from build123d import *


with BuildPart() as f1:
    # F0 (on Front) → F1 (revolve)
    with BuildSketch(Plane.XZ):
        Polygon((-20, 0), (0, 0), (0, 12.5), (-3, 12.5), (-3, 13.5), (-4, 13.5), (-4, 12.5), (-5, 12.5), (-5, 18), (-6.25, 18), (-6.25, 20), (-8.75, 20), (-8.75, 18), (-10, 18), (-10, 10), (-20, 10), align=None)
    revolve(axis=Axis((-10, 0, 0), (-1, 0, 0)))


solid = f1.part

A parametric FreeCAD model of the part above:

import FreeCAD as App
import Part
import Sketcher

V = App.Vector

doc = App.newDocument("Part")
body = doc.addObject("PartDesign::Body", "Body")

# Sketch on XZ plane
sketch1 = doc.addObject("Sketcher::SketchObject", "Sketch")
body.addObject(sketch1)
sketch1.AttachmentSupport = (doc.XZ_Plane, [""])
sketch1.MapMode = "FlatFace"
sketch1.addGeometry([
    Part.LineSegment(V(-20, 0, 0), V(0, 0, 0)),  # 0
    Part.LineSegment(V(0, 0, 0), V(0, 12.5, 0)),  # 1
    Part.LineSegment(V(0, 12.5, 0), V(-3, 12.5, 0)),  # 2
    Part.LineSegment(V(-3, 12.5, 0), V(-3, 13.5, 0)),  # 3
    Part.LineSegment(V(-3, 13.5, 0), V(-4, 13.5, 0)),  # 4
    Part.LineSegment(V(-4, 13.5, 0), V(-4, 12.5, 0)),  # 5
    Part.LineSegment(V(-4, 12.5, 0), V(-5, 12.5, 0)),  # 6
    Part.LineSegment(V(-5, 12.5, 0), V(-5, 18, 0)),  # 7
    Part.LineSegment(V(-5, 18, 0), V(-6.2, 18, 0)),  # 8
    Part.LineSegment(V(-6.2, 18, 0), V(-6.2, 20, 0)),  # 9
    Part.LineSegment(V(-6.2, 20, 0), V(-8.8, 20, 0)),  # 10
    Part.LineSegment(V(-8.8, 20, 0), V(-8.8, 18, 0)),  # 11
    Part.LineSegment(V(-8.8, 18, 0), V(-10, 18, 0)),  # 12
    Part.LineSegment(V(-10, 18, 0), V(-10, 10, 0)),  # 13
    Part.LineSegment(V(-10, 10, 0), V(-20, 10, 0)),  # 14
    Part.LineSegment(V(-20, 10, 0), V(-20, 0, 0)),  # 15
], False)
sketch1.addConstraint([
    Sketcher.Constraint("Coincident", 0, 2, 1, 1),
    Sketcher.Constraint("Coincident", 1, 2, 2, 1),
    Sketcher.Constraint("Coincident", 2, 2, 3, 1),
    Sketcher.Constraint("Coincident", 3, 2, 4, 1),
    Sketcher.Constraint("Coincident", 4, 2, 5, 1),
    Sketcher.Constraint("Coincident", 5, 2, 6, 1),
    Sketcher.Constraint("Coincident", 6, 2, 7, 1),
    Sketcher.Constraint("Coincident", 7, 2, 8, 1),
    Sketcher.Constraint("Coincident", 8, 2, 9, 1),
    Sketcher.Constraint("Coincident", 9, 2, 10, 1),
    Sketcher.Constraint("Coincident", 10, 2, 11, 1),
    Sketcher.Constraint("Coincident", 11, 2, 12, 1),
    Sketcher.Constraint("Coincident", 12, 2, 13, 1),
    Sketcher.Constraint("Coincident", 13, 2, 14, 1),
    Sketcher.Constraint("Coincident", 14, 2, 15, 1),
    Sketcher.Constraint("Coincident", 15, 2, 0, 1),
    Sketcher.Constraint("Horizontal", 0),
    Sketcher.Constraint("Vertical", 1),
    Sketcher.Constraint("Horizontal", 2),
    Sketcher.Constraint("Vertical", 3),
    Sketcher.Constraint("Horizontal", 4),
    Sketcher.Constraint("Vertical", 5),
    Sketcher.Constraint("Horizontal", 6),
    Sketcher.Constraint("Vertical", 7),
    Sketcher.Constraint("Horizontal", 8),
    Sketcher.Constraint("Vertical", 9),
    Sketcher.Constraint("Horizontal", 10),
    Sketcher.Constraint("Vertical", 11),
    Sketcher.Constraint("Horizontal", 12),
    Sketcher.Constraint("Vertical", 13),
    Sketcher.Constraint("Horizontal", 14),
    Sketcher.Constraint("Vertical", 15),
    Sketcher.Constraint("Coincident", 0, 2, -1, 1),
    Sketcher.Constraint("Horizontal", 2, 2, 5, 2),
    Sketcher.Constraint("Horizontal", 8, 2, 11, 2),
    Sketcher.Constraint("Equal", 4, 6),
    Sketcher.Constraint("Equal", 8, 12),
    Sketcher.Constraint("Equal", 6, 3),
    Sketcher.Constraint("Equal", 14, 15),
    Sketcher.Constraint("DistanceX", 0, 1, 0, 2, 20.0),
    Sketcher.Constraint("DistanceX", 2, 2, 2, 1, 3.0),
    Sketcher.Constraint("DistanceX", 4, 2, 4, 1, 1.0),
    Sketcher.Constraint("DistanceX", 14, 2, 14, 1, 10.0),
    Sketcher.Constraint("DistanceY", 9, 1, 9, 2, 2.0),
    Sketcher.Constraint("DistanceY", 13, 2, 13, 1, 8.0),
    Sketcher.Constraint("DistanceX", 10, 2, 10, 1, 2.5),
    Sketcher.Constraint("DistanceY", 1, 1, 1, 2, 12.5),
])
revolution = doc.addObject("PartDesign::Revolution", "Revolution")
body.addObject(revolution)
revolution.Profile = sketch1
revolution.ReferenceAxis = (sketch1, ["H_Axis"])
revolution.Angle = 360

doc.recompute()
